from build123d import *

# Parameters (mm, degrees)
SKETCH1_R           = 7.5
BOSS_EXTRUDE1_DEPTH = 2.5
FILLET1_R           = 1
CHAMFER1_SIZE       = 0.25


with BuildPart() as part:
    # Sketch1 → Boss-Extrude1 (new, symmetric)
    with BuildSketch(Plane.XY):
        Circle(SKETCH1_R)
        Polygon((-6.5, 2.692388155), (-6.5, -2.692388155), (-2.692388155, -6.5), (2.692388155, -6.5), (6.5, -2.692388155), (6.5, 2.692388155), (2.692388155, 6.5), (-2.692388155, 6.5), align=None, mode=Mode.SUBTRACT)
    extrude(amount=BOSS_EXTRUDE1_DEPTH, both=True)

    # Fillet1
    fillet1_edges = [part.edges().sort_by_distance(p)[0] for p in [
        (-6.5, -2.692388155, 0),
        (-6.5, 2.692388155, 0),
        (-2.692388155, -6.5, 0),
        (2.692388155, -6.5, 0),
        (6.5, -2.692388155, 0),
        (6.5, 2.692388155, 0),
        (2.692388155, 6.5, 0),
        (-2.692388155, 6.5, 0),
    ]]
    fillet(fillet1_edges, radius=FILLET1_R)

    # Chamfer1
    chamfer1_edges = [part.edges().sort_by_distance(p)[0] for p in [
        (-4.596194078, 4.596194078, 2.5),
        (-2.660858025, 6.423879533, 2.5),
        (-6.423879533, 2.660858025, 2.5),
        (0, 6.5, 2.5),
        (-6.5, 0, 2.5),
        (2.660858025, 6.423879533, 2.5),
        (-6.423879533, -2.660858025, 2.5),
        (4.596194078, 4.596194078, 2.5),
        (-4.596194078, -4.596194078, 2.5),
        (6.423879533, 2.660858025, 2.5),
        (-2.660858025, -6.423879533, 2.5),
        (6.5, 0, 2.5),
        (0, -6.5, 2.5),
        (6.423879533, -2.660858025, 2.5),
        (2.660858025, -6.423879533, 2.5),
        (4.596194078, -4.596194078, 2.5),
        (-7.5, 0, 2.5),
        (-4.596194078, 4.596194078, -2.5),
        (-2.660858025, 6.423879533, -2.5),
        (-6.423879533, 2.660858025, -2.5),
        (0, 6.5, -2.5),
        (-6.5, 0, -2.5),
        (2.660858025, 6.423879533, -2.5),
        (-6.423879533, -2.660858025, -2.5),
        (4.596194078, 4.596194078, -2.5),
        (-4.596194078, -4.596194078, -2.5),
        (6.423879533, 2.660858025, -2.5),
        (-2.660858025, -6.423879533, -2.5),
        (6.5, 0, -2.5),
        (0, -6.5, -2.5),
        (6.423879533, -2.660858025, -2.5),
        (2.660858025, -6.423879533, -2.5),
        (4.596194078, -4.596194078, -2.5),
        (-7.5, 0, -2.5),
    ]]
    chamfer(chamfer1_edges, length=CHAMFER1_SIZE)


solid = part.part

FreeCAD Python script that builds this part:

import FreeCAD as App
import Part
import Sketcher
Q = App.Units.Quantity


def edges_at(feature, points):
    """Names of the edges that pass closest to the given points."""
    edges = feature.Shape.Edges
    near = lambda p: min(range(len(edges)), key=lambda i: edges[i].distToShape(Part.Vertex(*p))[0])
    return sorted({f"Edge{near(p) + 1}" for p in points})

doc = App.newDocument("Part")
body = doc.addObject("PartDesign::Body", "Body")

sketch1 = body.newObject("Sketcher::SketchObject", "Sketch")
sketch1.AttachmentSupport = (doc.getObject("XY_Plane"), [""])
sketch1.MapMode = "FlatFace"
sketch1.addGeometry([
    Part.Circle(App.Vector(0, 0, 0), App.Vector(0, 0, 1), 8),
    Part.LineSegment(App.Vector(-6, -3, 0), App.Vector(-6, 3, 0)),
    Part.LineSegment(App.Vector(-6, 3, 0), App.Vector(-3, 6, 0)),
    Part.LineSegment(App.Vector(-3, 6, 0), App.Vector(3, 6, 0)),
    Part.LineSegment(App.Vector(3, 6, 0), App.Vector(6, 3, 0)),
    Part.LineSegment(App.Vector(6, 3, 0), App.Vector(6, -3, 0)),
    Part.LineSegment(App.Vector(6, -3, 0), App.Vector(3, -6, 0)),
    Part.LineSegment(App.Vector(3, -6, 0), App.Vector(-3, -6, 0)),
    Part.LineSegment(App.Vector(-3, -6, 0), App.Vector(-6, -3, 0)),
], False)
sketch1.addConstraint([
    Sketcher.Constraint("Coincident", 1, 2, 2, 1),
    Sketcher.Constraint("Coincident", 2, 2, 3, 1),
    Sketcher.Constraint("Coincident", 3, 2, 4, 1),
    Sketcher.Constraint("Coincident", 4, 2, 5, 1),
    Sketcher.Constraint("Coincident", 5, 2, 6, 1),
    Sketcher.Constraint("Coincident", 6, 2, 7, 1),
    Sketcher.Constraint("Coincident", 7, 2, 8, 1),
    Sketcher.Constraint("Coincident", 8, 2, 1, 1),
    Sketcher.Constraint("Vertical", 1),
    Sketcher.Constraint("Horizontal", 3),
    Sketcher.Constraint("Vertical", 5),
    Sketcher.Constraint("Horizontal", 7),
    Sketcher.Constraint("Coincident", 0, 3, -1, 1),
    Sketcher.Constraint("Symmetric", 1, 2, 5, 2, -1, 1),
    Sketcher.Constraint("Symmetric", 2, 2, 6, 2, -1, 1),
    Sketcher.Constraint("Perpendicular", 2, 4),
    Sketcher.Constraint("Perpendicular", 6, 8),
    Sketcher.Constraint("Horizontal", 1, 2, 4, 2),
    Sketcher.Constraint("Horizontal", 5, 2, 8, 2),
    Sketcher.Constraint("Vertical", 3, 2, 6, 2),
    Sketcher.Constraint("Equal", 7, 1),
    Sketcher.Constraint("Diameter", 0, Q("15 mm")),
    Sketcher.Constraint("DistanceX", 1, 2, 4, 2, Q("13 mm")),
    Sketcher.Constraint("DistanceX", 3, 1, 3, 2, Q("5.384776 mm")),
])
pad1 = body.newObject("PartDesign::Pad", "Pad")
pad1.Profile = sketch1
pad1.Length = 5
pad1.Midplane = True
doc.recompute()

fillet = body.newObject("PartDesign::Fillet", "Fillet")
fillet.Base = (pad1, edges_at(pad1, [
    (-6.5, -2.692, 0),
    (-6.5, 2.692, 0),
    (-2.692, -6.5, 0),
    (2.692, -6.5, 0),
    (6.5, -2.692, 0),
    (6.5, 2.692, 0),
    (2.692, 6.5, 0),
    (-2.692, 6.5, 0),
]))
fillet.Radius = 1
doc.recompute()

chamfer = body.newObject("PartDesign::Chamfer", "Chamfer")
chamfer.Base = (fillet, edges_at(fillet, [
    (-4.596, 4.596, 2.5),
    (-2.661, 6.424, 2.5),
    (-6.424, 2.661, 2.5),
    (0, 6.5, 2.5),
    (-6.5, 0, 2.5),
    (2.661, 6.424, 2.5),
    (-6.424, -2.661, 2.5),
    (4.596, 4.596, 2.5),
    (-4.596, -4.596, 2.5),
    (6.424, 2.661, 2.5),
    (-2.661, -6.424, 2.5),
    (6.5, 0, 2.5),
    (0, -6.5, 2.5),
    (6.424, -2.661, 2.5),
    (2.661, -6.424, 2.5),
    (4.596, -4.596, 2.5),
    (-7.5, 0, 2.5),
    (-4.596, 4.596, -2.5),
    (-2.661, 6.424, -2.5),
    (-6.424, 2.661, -2.5),
    (0, 6.5, -2.5),
    (-6.5, 0, -2.5),
    (2.661, 6.424, -2.5),
    (-6.424, -2.661, -2.5),
    (4.596, 4.596, -2.5),
    (-4.596, -4.596, -2.5),
    (6.424, 2.661, -2.5),
    (-2.661, -6.424, -2.5),
    (6.5, 0, -2.5),
    (0, -6.5, -2.5),
    (6.424, -2.661, -2.5),
    (2.661, -6.424, -2.5),
    (4.596, -4.596, -2.5),
    (-7.5, 0, -2.5),
]))
chamfer.Size = 0.25

doc.recompute()
